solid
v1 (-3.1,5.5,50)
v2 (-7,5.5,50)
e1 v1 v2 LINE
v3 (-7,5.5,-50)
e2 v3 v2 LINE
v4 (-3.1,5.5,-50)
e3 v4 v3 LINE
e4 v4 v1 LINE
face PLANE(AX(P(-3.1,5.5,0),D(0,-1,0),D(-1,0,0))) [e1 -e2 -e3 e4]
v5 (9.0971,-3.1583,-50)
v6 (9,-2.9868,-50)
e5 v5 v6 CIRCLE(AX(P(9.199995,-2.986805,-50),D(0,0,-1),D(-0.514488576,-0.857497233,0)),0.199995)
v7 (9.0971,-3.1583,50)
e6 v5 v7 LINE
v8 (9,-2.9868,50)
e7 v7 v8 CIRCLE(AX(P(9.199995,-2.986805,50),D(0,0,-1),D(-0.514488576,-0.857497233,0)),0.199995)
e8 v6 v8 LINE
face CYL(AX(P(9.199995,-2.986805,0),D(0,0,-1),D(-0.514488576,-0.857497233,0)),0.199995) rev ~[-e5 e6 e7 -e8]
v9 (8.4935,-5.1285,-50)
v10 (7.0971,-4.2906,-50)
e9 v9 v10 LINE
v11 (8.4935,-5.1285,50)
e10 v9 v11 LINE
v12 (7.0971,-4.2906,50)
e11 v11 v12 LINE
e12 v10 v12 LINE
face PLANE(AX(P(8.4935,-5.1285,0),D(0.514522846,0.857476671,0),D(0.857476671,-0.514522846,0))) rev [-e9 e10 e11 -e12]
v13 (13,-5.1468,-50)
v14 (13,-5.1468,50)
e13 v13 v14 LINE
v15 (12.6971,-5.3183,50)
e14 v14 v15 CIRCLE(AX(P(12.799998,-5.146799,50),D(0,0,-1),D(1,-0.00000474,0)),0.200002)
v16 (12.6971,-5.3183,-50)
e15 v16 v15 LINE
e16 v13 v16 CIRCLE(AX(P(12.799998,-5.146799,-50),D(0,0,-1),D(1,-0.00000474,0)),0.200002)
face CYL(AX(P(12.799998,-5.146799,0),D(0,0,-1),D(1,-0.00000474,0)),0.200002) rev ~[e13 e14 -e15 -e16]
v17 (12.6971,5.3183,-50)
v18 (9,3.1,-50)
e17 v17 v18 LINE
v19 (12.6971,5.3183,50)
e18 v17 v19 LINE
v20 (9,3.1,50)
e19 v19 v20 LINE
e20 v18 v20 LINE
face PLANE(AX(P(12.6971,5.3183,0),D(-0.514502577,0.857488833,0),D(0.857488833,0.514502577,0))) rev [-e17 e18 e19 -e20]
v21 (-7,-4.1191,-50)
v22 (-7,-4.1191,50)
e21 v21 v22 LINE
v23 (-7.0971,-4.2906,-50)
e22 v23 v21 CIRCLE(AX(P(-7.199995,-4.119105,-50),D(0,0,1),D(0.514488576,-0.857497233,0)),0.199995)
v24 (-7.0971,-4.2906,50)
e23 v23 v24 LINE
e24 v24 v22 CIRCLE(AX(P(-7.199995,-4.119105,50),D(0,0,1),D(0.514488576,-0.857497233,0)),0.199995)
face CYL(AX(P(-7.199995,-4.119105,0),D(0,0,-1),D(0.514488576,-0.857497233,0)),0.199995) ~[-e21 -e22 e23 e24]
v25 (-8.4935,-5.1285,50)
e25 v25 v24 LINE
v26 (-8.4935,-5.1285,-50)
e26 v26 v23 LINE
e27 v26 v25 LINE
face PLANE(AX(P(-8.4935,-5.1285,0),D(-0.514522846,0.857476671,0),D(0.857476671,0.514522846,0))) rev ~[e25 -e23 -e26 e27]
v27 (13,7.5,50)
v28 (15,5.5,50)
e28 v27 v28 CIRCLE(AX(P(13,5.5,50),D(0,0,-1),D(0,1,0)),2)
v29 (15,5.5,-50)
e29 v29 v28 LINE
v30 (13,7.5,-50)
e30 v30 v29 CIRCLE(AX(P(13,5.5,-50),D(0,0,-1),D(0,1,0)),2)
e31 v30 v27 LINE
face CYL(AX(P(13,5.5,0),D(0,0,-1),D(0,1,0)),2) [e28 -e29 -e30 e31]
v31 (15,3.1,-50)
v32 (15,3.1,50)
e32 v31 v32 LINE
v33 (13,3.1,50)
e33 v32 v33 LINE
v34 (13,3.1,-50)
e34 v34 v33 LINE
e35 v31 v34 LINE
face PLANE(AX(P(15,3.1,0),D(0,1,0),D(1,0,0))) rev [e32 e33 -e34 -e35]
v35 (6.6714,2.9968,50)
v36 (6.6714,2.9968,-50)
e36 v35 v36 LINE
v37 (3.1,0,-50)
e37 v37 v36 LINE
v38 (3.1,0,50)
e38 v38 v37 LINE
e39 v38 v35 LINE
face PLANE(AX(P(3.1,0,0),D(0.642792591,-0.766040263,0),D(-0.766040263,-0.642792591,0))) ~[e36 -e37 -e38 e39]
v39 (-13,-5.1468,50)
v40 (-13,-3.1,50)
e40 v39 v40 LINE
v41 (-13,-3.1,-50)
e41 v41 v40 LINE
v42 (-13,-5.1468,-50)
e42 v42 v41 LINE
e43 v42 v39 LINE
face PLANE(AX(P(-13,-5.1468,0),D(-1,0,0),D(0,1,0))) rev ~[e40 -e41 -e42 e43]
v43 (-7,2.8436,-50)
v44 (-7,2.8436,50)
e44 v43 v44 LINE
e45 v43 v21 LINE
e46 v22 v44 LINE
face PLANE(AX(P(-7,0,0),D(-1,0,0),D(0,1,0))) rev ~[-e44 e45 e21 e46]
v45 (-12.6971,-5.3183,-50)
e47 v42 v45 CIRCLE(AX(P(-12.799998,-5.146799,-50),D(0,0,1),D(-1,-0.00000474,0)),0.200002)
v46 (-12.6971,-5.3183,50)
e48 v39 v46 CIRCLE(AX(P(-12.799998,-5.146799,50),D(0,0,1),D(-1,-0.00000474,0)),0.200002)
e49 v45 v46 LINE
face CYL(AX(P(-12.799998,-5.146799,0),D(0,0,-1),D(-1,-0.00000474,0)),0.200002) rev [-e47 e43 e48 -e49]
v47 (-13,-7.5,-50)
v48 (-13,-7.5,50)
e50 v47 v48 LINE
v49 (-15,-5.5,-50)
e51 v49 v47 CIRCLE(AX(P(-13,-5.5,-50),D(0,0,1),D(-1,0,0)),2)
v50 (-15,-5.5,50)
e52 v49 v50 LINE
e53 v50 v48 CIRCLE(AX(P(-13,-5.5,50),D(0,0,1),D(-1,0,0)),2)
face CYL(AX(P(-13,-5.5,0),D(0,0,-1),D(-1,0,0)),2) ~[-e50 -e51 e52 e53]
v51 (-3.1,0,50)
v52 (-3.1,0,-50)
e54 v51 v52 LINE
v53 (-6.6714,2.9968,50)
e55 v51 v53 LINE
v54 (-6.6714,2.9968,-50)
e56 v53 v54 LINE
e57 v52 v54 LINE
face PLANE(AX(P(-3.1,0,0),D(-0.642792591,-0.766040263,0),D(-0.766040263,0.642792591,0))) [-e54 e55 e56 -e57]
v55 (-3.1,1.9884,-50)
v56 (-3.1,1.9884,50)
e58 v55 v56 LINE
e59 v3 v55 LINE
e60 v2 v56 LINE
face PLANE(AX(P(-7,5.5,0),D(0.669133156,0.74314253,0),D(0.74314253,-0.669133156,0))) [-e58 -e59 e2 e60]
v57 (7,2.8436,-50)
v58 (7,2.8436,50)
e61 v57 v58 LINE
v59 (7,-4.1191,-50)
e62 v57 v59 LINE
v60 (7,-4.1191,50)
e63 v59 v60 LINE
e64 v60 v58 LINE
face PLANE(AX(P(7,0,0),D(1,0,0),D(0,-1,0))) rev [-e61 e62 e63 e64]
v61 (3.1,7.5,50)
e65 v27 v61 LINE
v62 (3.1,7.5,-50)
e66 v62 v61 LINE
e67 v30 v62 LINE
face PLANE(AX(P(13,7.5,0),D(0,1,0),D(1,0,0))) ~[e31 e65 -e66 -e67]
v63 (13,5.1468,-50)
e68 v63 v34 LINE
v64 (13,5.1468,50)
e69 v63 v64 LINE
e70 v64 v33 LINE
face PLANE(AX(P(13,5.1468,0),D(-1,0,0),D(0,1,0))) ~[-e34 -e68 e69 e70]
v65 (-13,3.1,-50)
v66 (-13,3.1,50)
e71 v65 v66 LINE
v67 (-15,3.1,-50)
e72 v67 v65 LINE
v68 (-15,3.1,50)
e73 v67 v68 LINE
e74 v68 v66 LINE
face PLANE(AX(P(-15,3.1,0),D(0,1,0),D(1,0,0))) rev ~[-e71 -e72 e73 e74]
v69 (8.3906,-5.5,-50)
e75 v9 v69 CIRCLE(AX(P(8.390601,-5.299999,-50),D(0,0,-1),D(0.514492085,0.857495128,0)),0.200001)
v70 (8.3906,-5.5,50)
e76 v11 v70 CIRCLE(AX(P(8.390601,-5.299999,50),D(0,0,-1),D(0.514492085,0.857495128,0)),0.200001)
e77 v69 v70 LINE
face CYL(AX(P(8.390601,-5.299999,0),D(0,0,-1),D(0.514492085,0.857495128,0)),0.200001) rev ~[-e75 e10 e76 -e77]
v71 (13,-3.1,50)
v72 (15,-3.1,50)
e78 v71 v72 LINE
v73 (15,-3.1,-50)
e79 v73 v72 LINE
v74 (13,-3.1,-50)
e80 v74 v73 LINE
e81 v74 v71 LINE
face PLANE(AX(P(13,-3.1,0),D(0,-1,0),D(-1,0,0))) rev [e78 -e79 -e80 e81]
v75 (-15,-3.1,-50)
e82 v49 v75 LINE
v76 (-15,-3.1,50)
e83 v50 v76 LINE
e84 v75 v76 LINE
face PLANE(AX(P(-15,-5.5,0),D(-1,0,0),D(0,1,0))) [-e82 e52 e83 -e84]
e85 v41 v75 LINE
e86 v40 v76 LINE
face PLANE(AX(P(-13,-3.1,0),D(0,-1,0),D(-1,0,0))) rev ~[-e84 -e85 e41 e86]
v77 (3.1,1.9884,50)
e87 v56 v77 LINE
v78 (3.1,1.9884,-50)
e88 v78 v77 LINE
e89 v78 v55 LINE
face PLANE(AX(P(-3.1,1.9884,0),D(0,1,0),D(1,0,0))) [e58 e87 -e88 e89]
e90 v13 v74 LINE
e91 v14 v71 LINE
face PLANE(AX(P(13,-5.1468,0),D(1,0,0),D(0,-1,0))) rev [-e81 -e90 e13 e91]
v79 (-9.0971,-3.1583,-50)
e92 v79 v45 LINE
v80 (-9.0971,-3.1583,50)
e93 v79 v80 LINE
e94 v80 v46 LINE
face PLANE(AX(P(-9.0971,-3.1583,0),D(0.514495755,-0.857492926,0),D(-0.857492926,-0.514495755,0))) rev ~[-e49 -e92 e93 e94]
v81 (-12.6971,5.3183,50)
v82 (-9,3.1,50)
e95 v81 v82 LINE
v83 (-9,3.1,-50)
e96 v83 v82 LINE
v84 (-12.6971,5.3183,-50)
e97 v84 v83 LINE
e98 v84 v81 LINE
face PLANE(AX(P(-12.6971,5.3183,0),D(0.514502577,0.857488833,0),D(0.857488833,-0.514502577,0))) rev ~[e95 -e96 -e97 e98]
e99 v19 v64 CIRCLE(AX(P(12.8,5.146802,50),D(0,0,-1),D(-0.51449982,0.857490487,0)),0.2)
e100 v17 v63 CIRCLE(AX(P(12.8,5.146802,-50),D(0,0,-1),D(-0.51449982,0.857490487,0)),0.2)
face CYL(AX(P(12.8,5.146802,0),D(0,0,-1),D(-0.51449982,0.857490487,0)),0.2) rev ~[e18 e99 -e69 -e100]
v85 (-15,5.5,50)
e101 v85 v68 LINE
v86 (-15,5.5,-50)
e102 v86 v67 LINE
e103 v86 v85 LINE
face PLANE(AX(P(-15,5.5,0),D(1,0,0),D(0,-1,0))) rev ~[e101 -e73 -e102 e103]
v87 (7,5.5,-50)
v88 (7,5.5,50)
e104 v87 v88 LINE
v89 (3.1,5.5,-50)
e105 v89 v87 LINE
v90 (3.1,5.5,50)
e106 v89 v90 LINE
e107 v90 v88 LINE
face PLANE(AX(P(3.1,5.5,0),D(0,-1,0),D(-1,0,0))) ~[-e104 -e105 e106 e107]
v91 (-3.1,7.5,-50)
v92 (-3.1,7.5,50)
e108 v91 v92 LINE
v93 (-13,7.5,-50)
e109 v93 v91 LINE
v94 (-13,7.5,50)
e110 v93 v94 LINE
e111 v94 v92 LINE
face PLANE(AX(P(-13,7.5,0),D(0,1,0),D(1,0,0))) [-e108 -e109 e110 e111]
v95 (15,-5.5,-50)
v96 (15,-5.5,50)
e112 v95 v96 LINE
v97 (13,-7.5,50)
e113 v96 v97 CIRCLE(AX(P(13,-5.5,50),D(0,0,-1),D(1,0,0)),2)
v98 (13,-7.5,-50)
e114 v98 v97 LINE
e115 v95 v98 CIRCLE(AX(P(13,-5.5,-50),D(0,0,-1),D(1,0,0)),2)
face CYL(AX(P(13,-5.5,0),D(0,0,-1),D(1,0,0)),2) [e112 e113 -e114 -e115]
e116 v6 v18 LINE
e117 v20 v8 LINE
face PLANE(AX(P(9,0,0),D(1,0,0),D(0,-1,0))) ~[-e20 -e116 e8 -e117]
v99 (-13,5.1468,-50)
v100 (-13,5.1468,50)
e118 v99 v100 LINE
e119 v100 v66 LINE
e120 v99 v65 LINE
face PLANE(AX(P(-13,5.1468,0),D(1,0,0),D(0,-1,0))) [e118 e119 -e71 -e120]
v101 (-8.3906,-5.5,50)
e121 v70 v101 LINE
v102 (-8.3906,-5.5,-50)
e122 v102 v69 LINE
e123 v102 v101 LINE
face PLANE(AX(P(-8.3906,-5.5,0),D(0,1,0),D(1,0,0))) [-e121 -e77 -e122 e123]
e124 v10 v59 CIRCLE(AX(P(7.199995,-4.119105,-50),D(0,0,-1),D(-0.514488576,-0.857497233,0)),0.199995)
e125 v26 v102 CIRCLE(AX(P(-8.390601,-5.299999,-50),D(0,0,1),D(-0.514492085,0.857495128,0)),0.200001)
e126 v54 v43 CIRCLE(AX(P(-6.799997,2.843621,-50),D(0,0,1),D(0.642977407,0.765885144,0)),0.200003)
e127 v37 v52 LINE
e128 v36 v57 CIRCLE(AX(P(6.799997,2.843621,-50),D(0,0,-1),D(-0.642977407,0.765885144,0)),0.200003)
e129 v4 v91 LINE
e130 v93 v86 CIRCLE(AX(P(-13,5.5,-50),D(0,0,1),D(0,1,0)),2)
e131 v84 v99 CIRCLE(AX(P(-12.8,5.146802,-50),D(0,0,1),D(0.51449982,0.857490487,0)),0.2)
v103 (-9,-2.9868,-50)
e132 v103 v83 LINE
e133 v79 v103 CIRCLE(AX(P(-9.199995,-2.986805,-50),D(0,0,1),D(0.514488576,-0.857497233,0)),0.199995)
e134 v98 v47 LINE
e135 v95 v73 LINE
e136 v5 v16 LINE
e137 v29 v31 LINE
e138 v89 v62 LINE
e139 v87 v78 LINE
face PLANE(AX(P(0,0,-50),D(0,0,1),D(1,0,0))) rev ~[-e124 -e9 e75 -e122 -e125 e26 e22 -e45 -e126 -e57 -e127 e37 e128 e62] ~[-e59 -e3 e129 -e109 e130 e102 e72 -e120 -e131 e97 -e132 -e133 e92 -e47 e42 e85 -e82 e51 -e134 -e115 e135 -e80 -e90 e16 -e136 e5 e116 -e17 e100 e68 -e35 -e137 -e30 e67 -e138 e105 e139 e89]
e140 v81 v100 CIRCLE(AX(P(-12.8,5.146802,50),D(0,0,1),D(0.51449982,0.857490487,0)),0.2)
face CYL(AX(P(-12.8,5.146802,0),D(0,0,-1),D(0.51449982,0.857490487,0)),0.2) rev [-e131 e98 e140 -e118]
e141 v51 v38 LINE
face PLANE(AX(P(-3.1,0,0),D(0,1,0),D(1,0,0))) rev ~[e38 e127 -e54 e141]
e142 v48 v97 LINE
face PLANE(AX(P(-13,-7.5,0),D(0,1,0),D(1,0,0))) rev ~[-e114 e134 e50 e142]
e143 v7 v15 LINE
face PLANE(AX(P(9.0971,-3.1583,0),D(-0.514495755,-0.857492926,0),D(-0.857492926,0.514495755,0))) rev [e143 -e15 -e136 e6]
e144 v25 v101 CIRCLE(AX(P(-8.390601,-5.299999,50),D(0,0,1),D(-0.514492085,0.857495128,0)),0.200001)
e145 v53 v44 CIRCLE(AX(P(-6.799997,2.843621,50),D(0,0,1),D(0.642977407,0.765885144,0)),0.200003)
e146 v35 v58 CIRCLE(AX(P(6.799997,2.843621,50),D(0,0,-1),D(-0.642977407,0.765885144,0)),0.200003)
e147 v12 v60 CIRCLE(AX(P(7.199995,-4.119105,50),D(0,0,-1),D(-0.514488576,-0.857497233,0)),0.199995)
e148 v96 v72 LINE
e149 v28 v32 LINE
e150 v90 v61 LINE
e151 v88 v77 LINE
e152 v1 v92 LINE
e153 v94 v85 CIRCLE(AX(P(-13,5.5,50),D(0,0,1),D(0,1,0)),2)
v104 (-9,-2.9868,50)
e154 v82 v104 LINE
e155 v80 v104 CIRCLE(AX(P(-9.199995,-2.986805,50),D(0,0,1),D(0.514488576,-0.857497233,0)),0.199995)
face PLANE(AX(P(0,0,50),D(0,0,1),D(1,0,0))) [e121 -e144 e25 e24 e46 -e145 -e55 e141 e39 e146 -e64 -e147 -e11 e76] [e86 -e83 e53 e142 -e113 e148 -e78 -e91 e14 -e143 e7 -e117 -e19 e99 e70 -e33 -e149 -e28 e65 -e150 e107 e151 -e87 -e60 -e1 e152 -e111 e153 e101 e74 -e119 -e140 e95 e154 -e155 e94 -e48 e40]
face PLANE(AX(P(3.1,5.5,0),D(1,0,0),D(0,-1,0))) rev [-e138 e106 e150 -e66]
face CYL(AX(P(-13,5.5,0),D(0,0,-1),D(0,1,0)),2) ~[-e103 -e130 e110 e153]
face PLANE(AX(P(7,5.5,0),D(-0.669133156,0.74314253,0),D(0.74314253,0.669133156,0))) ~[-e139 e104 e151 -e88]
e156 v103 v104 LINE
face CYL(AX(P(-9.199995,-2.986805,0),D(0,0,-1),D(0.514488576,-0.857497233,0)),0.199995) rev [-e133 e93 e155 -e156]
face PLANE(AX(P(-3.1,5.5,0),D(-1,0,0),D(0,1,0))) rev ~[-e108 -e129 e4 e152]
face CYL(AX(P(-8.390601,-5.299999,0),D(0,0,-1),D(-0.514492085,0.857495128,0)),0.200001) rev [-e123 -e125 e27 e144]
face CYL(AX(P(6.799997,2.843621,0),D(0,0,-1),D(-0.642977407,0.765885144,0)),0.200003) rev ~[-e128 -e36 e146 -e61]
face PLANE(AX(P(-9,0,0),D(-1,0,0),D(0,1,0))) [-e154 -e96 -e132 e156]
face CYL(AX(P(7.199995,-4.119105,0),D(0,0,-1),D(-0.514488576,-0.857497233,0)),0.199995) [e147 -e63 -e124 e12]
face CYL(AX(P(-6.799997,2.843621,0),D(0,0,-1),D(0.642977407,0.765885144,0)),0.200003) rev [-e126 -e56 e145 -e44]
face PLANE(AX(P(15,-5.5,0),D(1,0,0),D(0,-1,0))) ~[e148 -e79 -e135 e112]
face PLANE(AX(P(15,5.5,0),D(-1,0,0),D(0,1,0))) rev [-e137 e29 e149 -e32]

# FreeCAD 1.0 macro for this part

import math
import FreeCAD as App
import Part
import Sketcher
Q = App.Units.Quantity

doc = App.newDocument("Part")
body = doc.addObject("PartDesign::Body", "Body")

# Sketch on XY plane
sketch1 = body.newObject("Sketcher::SketchObject", "Sketch")
sketch1.AttachmentSupport = (doc.getObject("XY_Plane"), [""])
sketch1.MapMode = "FlatFace"
sketch1.addGeometry(Part.LineSegment(App.Vector(0, 0, 0), App.Vector(0, 1.99, 0)), False)
sketch1.addGeometry(Part.LineSegment(App.Vector(0, 1.99, 0), App.Vector(-3.1, 1.99, 0)), False)
sketch1.addGeometry(Part.LineSegment(App.Vector(-3.1, 1.99, 0), App.Vector(-7, 5.5, 0)), False)
sketch1.addGeometry(Part.LineSegment(App.Vector(-7, 5.5, 0), App.Vector(-3.1, 5.5, 0)), False)
sketch1.addGeometry(Part.LineSegment(App.Vector(-3.1, 5.5, 0), App.Vector(-3.1, 7.5, 0)), False)
sketch1.addGeometry(Part.LineSegment(App.Vector(-3.1, 7.5, 0), App.Vector(-13, 7.5, 0)), False)
sketch1.addGeometry(Part.ArcOfCircle(Part.Circle(App.Vector(-13, 5.5, 0), App.Vector(0, 0, 1), 2), math.radians(90), math.radians(180)), False)
sketch1.addGeometry(Part.LineSegment(App.Vector(-15, 5.5, 0), App.Vector(-15, 3.1, 0)), False)
sketch1.addGeometry(Part.LineSegment(App.Vector(-15, 3.1, 0), App.Vector(-13, 3.1, 0)), False)
sketch1.addGeometry(Part.LineSegment(App.Vector(-13, 3.1, 0), App.Vector(-13, 5.15, 0)), False)
sketch1.addGeometry(Part.ArcOfCircle(Part.Circle(App.Vector(-12.8, 5.15, 0), App.Vector(0, 0, 1), 0.2), math.radians(59), math.radians(180)), False)
sketch1.addGeometry(Part.LineSegment(App.Vector(-12.7, 5.32, 0), App.Vector(-9, 3.1, 0)), False)
sketch1.addGeometry(Part.LineSegment(App.Vector(-9, 3.1, 0), App.Vector(-9, -2.99, 0)), False)
sketch1.addGeometry(Part.ArcOfCircle(Part.Circle(App.Vector(-9.2, -2.99, 0), App.Vector(0, 0, 1), 0.2), math.radians(-59), math.radians(0)), False)
sketch1.addGeometry(Part.LineSegment(App.Vector(-9.1, -3.16, 0), App.Vector(-12.7, -5.32, 0)), False)
sketch1.addGeometry(Part.ArcOfCircle(Part.Circle(App.Vector(-12.8, -5.15, 0), App.Vector(0, 0, 1), 0.2), math.radians(180), math.radians(301)), False)
sketch1.addGeometry(Part.LineSegment(App.Vector(-13, -5.15, 0), App.Vector(-13, -3.1, 0)), False)
sketch1.addGeometry(Part.LineSegment(App.Vector(-13, -3.1, 0), App.Vector(-15, -3.1, 0)), False)
sketch1.addGeometry(Part.LineSegment(App.Vector(-15, -3.1, 0), App.Vector(-15, -5.5, 0)), False)
sketch1.addGeometry(Part.ArcOfCircle(Part.Circle(App.Vector(-13, -5.5, 0), App.Vector(0, 0, 1), 2), math.radians(180), math.radians(270)), False)
sketch1.addGeometry(Part.LineSegment(App.Vector(-13, -7.5, 0), App.Vector(0, -7.5, 0)), False)
sketch1.addGeometry(Part.LineSegment(App.Vector(0, -7.5, 0), App.Vector(0, -5.5, 0)), False)
sketch1.addGeometry(Part.LineSegment(App.Vector(0, -5.5, 0), App.Vector(-8.39, -5.5, 0)), False)
sketch1.addGeometry(Part.ArcOfCircle(Part.Circle(App.Vector(-8.39, -5.3, 0), App.Vector(0, 0, 1), 0.2), math.radians(121), math.radians(270)), False)
sketch1.addGeometry(Part.LineSegment(App.Vector(-8.49, -5.13, 0), App.Vector(-7.1, -4.29, 0)), False)
sketch1.addGeometry(Part.ArcOfCircle(Part.Circle(App.Vector(-7.2, -4.12, 0), App.Vector(0, 0, 1), 0.2), math.radians(-59), math.radians(0)), False)
sketch1.addGeometry(Part.LineSegment(App.Vector(-7, -4.12, 0), App.Vector(-7, 2.84, 0)), False)
sketch1.addGeometry(Part.ArcOfCircle(Part.Circle(App.Vector(-6.8, 2.84, 0), App.Vector(0, 0, 1), 0.2), math.radians(50), math.radians(180)), False)
sketch1.addGeometry(Part.LineSegment(App.Vector(-6.67, 3, 0), App.Vector(-3.1, 0, 0)), False)
sketch1.addGeometry(Part.LineSegment(App.Vector(-3.1, 0, 0), App.Vector(0, 0, 0)), False)
sketch1.addConstraint(Sketcher.Constraint("Coincident", 0, 2, 1, 1))
sketch1.addConstraint(Sketcher.Constraint("Coincident", 1, 2, 2, 1))
sketch1.addConstraint(Sketcher.Constraint("Coincident", 2, 2, 3, 1))
sketch1.addConstraint(Sketcher.Constraint("Coincident", 3, 2, 4, 1))
sketch1.addConstraint(Sketcher.Constraint("Coincident", 4, 2, 5, 1))
sketch1.addConstraint(Sketcher.Constraint("Tangent", 5, 2, 6, 1))
sketch1.addConstraint(Sketcher.Constraint("Tangent", 6, 2, 7, 1))
sketch1.addConstraint(Sketcher.Constraint("Coincident", 7, 2, 8, 1))
sketch1.addConstraint(Sketcher.Constraint("Coincident", 8, 2, 9, 1))
sketch1.addConstraint(Sketcher.Constraint("Tangent", 9, 2, 10, 2))
sketch1.addConstraint(Sketcher.Constraint("Tangent", 10, 1, 11, 1))
sketch1.addConstraint(Sketcher.Constraint("Coincident", 11, 2, 12, 1))
sketch1.addConstraint(Sketcher.Constraint("Tangent", 12, 2, 13, 2))
sketch1.addConstraint(Sketcher.Constraint("Tangent", 13, 1, 14, 1))
sketch1.addConstraint(Sketcher.Constraint("Tangent", 14, 2, 15, 2))
sketch1.addConstraint(Sketcher.Constraint("Tangent", 15, 1, 16, 1))
sketch1.addConstraint(Sketcher.Constraint("Coincident", 16, 2, 17, 1))
sketch1.addConstraint(Sketcher.Constraint("Coincident", 17, 2, 18, 1))
sketch1.addConstraint(Sketcher.Constraint("Tangent", 18, 2, 19, 1))
sketch1.addConstraint(Sketcher.Constraint("Tangent", 19, 2, 20, 1))
sketch1.addConstraint(Sketcher.Constraint("Coincident", 20, 2, 21, 1))
sketch1.addConstraint(Sketcher.Constraint("Coincident", 21, 2, 22, 1))
sketch1.addConstraint(Sketcher.Constraint("Tangent", 22, 2, 23, 2))
sketch1.addConstraint(Sketcher.Constraint("Tangent", 23, 1, 24, 1))
sketch1.addConstraint(Sketcher.Constraint("Tangent", 24, 2, 25, 1))
sketch1.addConstraint(Sketcher.Constraint("Tangent", 25, 2, 26, 1))
sketch1.addConstraint(Sketcher.Constraint("Tangent", 26, 2, 27, 2))
sketch1.addConstraint(Sketcher.Constraint("Tangent", 27, 1, 28, 1))
sketch1.addConstraint(Sketcher.Constraint("Coincident", 28, 2, 29, 1))
sketch1.addConstraint(Sketcher.Constraint("Coincident", 29, 2, 0, 1))
sketch1.addConstraint(Sketcher.Constraint("Vertical", 0))
sketch1.addConstraint(Sketcher.Constraint("Horizontal", 1))
sketch1.addConstraint(Sketcher.Constraint("Horizontal", 3))
sketch1.addConstraint(Sketcher.Constraint("Vertical", 4))
sketch1.addConstraint(Sketcher.Constraint("Horizontal", 5))
sketch1.addConstraint(Sketcher.Constraint("Vertical", 7))
sketch1.addConstraint(Sketcher.Constraint("Horizontal", 8))
sketch1.addConstraint(Sketcher.Constraint("Vertical", 9))
sketch1.addConstraint(Sketcher.Constraint("Vertical", 12))
sketch1.addConstraint(Sketcher.Constraint("Vertical", 16))
sketch1.addConstraint(Sketcher.Constraint("Horizontal", 17))
sketch1.addConstraint(Sketcher.Constraint("Vertical", 18))
sketch1.addConstraint(Sketcher.Constraint("Horizontal", 20))
sketch1.addConstraint(Sketcher.Constraint("Vertical", 21))
sketch1.addConstraint(Sketcher.Constraint("Horizontal", 22))
sketch1.addConstraint(Sketcher.Constraint("Vertical", 26))
sketch1.addConstraint(Sketcher.Constraint("Horizontal", 29))
sketch1.addConstraint(Sketcher.Constraint("Coincident", 29, 2, -1, 1))
sketch1.addConstraint(Sketcher.Constraint("Equal", 10, 13))
sketch1.addConstraint(Sketcher.Constraint("Equal", 13, 15))
sketch1.addConstraint(Sketcher.Constraint("Equal", 6, 19))
sketch1.addConstraint(Sketcher.Constraint("Equal", 15, 23))
sketch1.addConstraint(Sketcher.Constraint("Equal", 23, 25))
sketch1.addConstraint(Sketcher.Constraint("Equal", 25, 27))
sketch1.addConstraint(Sketcher.Constraint("Symmetric", 10, 3, 15, 3, -1))
sketch1.addConstraint(Sketcher.Constraint("Symmetric", 6, 3, 19, 3, -1))
sketch1.addConstraint(Sketcher.Constraint("PointOnObject", 20, 2, -2))
sketch1.addConstraint(Sketcher.Constraint("Parallel", 14, 24))
sketch1.addConstraint(Sketcher.Constraint("Horizontal", 6, 3, 2, 2))
sketch1.addConstraint(Sketcher.Constraint("Horizontal", 8, 2, 11, 2))
sketch1.addConstraint(Sketcher.Constraint("Horizontal", 18, 2, 21, 2))
sketch1.addConstraint(Sketcher.Constraint("Vertical", 1, 2, 3, 2))
sketch1.addConstraint(Sketcher.Constraint("Vertical", 5, 2, 8, 2))
sketch1.addConstraint(Sketcher.Constraint("Vertical", 10, 1, 14, 2))
sketch1.addConstraint(Sketcher.Constraint("Vertical", 2, 2, 25, 2))
sketch1.addConstraint(Sketcher.Constraint("Vertical", 4, 2, 28, 2))
sketch1.addConstraint(Sketcher.Constraint("Equal", 9, 16))
sketch1.addConstraint(Sketcher.Constraint("Radius", 6, Q("2 mm")))
sketch1.addConstraint(Sketcher.Constraint("Radius", 10, Q("0.2 mm")))
sketch1.addConstraint(Sketcher.Constraint("DistanceX", 1, 2, 1, 1, Q("3.1 mm")))
sketch1.addConstraint(Sketcher.Constraint("DistanceY", 7, 2, 7, 1, Q("2.4 mm")))
sketch1.addConstraint(Sketcher.Constraint("DistanceX", 6, 2, -1, 1, Q("15 mm")))
sketch1.addConstraint(Sketcher.Constraint("DistanceX", 13, 3, 25, 3, Q("2 mm")))
sketch1.addConstraint(Sketcher.Constraint("DistanceX", 10, 3, 27, 3, Q("6 mm")))
sketch1.addConstraint(Sketcher.Constraint("DistanceY", -1, 1, 4, 2, Q("7.5 mm")))
sketch1.addConstraint(Sketcher.Constraint("Angle", 2, Q("137.9998 deg")))
sketch1.addConstraint(Sketcher.Constraint("Angle", 28, Q("-40.0004 deg")))
sketch1.addConstraint(Sketcher.Constraint("DistanceY", 15, 3, 13, 3, Q("2.16 mm")))
sketch1.addConstraint(Sketcher.Constraint("DistanceX", 22, 2, 22, 1, Q("8.3906 mm")))
pad1 = body.newObject("PartDesign::Pad", "Pad")
pad1.Profile = sketch1
pad1.Length = 100
pad1.Midplane = True
doc.recompute()

mirrored = body.newObject("PartDesign::Mirrored", "Mirrored")
mirrored.Originals = [pad1]
mirrored.MirrorPlane = (doc.getObject("YZ_Plane"), [""])
body.Tip = mirrored

doc.recompute()
